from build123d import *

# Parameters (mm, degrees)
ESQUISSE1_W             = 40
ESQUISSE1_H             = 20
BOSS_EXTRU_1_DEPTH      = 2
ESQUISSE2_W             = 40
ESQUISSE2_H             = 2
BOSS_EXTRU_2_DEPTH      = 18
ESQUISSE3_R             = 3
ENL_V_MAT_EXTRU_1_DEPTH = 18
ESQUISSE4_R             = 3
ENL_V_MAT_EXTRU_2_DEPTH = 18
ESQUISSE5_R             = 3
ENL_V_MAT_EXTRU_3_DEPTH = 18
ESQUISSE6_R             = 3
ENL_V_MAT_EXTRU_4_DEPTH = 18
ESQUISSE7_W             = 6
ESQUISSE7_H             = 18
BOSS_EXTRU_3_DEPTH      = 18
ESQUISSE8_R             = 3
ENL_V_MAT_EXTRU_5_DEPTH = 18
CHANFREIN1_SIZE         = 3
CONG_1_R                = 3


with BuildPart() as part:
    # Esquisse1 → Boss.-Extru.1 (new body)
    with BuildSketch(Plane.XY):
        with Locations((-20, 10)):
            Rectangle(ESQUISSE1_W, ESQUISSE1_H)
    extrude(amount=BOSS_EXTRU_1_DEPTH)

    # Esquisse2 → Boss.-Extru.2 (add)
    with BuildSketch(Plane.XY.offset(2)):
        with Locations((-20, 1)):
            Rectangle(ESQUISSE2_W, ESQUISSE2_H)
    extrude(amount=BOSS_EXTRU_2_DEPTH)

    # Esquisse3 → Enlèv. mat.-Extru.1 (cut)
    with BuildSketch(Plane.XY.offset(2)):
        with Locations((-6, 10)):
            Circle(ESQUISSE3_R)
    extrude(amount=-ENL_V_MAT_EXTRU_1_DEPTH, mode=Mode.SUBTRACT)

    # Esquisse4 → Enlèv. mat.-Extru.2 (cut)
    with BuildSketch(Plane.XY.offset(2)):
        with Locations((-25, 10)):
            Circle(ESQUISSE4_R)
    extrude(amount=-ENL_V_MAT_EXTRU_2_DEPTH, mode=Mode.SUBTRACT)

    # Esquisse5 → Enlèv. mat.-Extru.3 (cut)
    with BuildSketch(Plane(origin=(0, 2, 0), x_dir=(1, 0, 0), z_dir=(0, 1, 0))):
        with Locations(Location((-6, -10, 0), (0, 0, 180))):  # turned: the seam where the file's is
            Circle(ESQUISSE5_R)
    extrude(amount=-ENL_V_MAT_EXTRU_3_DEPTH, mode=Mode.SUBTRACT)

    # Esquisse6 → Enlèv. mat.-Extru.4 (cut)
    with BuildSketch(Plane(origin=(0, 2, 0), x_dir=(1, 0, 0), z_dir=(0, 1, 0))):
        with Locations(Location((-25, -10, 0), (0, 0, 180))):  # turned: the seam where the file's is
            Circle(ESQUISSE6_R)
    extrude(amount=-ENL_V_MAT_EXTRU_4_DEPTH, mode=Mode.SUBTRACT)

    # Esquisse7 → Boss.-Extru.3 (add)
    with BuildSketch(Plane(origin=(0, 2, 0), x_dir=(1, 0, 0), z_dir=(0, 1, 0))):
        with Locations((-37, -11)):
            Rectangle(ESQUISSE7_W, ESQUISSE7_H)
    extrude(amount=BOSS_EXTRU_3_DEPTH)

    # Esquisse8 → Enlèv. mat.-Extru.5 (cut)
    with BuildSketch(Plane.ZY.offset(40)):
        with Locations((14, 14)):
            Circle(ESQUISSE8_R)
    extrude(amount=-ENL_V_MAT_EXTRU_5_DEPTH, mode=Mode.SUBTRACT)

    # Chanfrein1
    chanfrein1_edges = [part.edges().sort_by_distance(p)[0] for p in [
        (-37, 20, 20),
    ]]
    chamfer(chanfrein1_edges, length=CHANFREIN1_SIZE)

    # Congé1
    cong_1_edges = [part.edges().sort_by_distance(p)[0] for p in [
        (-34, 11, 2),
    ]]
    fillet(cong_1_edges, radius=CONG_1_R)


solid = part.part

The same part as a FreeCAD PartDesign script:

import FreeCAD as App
import Part
import Sketcher

V = App.Vector
Q = App.Units.Quantity


def edges_at(feature, points):
    """Names of the edges that pass closest to the given points."""
    edges = feature.Shape.Edges
    near = lambda p: min(range(len(edges)), key=lambda i: edges[i].distToShape(Part.Vertex(*p))[0])
    return sorted({f"Edge{near(p) + 1}" for p in points})


def add_polygon(sketch, points):
    """Adds a closed chain of lines whose ends are joined by coincident constraints."""
    first, n = sketch.GeometryCount, len(points)
    for a, b in zip(points, points[1:] + points[:1]):
        sketch.addGeometry(Part.LineSegment(App.Vector(*a, 0), App.Vector(*b, 0)), False)
    for i in range(n):
        sketch.addConstraint(Sketcher.Constraint("Coincident", first + i, 2, first + (i + 1) % n, 1))

doc = App.newDocument("Part")
body = doc.addObject("PartDesign::Body", "Body")

# Sketch on XY plane
sketch1 = body.newObject("Sketcher::SketchObject", "Sketch")
sketch1.AttachmentSupport = (doc.getObject("XY_Plane"), [""])
sketch1.MapMode = "FlatFace"
add_polygon(sketch1, [(-40, 20), (-40, 0), (0, 0), (0, 20)])  # lines 0-3
sketch1.addConstraint([
    Sketcher.Constraint("Vertical", 0),
    Sketcher.Constraint("Horizontal", 1),
    Sketcher.Constraint("Vertical", 2),
    Sketcher.Constraint("Horizontal", 3),
    Sketcher.Constraint("Coincident", 1, 2, -1, 1),
    Sketcher.Constraint("DistanceX", 1, 1, 1, 2, Q("40 mm")),
    Sketcher.Constraint("DistanceY", 0, 2, 0, 1, Q("20 mm")),
])
pad1 = body.newObject("PartDesign::Pad", "Pad")
pad1.Profile = sketch1
pad1.Length = 2

# Sketch on XY plane
sketch2 = body.newObject("Sketcher::SketchObject", "Sketch001")
sketch2.AttachmentSupport = (doc.getObject("XY_Plane"), [""])
sketch2.MapMode = "FlatFace"
sketch2.AttachmentOffset = App.Placement(V(0, 0, 2), App.Rotation())
add_polygon(sketch2, [(-40, 2), (-40, 0), (0, 0), (0, 2)])  # lines 0-3
sketch2.addConstraint([
    Sketcher.Constraint("Vertical", 0),
    Sketcher.Constraint("Horizontal", 1),
    Sketcher.Constraint("Vertical", 2),
    Sketcher.Constraint("Horizontal", 3),
    Sketcher.Constraint("Coincident", 1, 2, -1, 1),
    Sketcher.Constraint("DistanceX", 1, 1, 1, 2, Q("40 mm")),
    Sketcher.Constraint("DistanceY", 0, 2, 0, 1, Q("2 mm")),
])
pad2 = body.newObject("PartDesign::Pad", "Pad001")
pad2.Profile = sketch2
pad2.Length = 18

# Sketch on XY plane
sketch3 = body.newObject("Sketcher::SketchObject", "Sketch002")
sketch3.AttachmentSupport = (doc.getObject("XY_Plane"), [""])
sketch3.MapMode = "FlatFace"
sketch3.AttachmentOffset = App.Placement(V(0, 0, 2), App.Rotation())
sketch3.addGeometry(Part.Circle(V(-6, 10, 0), V(0, 0, 1), 3), False)
sketch3.addConstraint([
    Sketcher.Constraint("Diameter", 0, Q("6 mm")),
    Sketcher.Constraint("DistanceX", 0, 3, -1, 1, Q("6 mm")),
    Sketcher.Constraint("DistanceY", -1, 1, 0, 3, Q("10 mm")),
])
pocket1 = body.newObject("PartDesign::Pocket", "Pocket")
pocket1.Profile = sketch3
pocket1.Length = 18

# Sketch on XY plane
sketch4 = body.newObject("Sketcher::SketchObject", "Sketch003")
sketch4.AttachmentSupport = (doc.getObject("XY_Plane"), [""])
sketch4.MapMode = "FlatFace"
sketch4.AttachmentOffset = App.Placement(V(0, 0, 2), App.Rotation())
sketch4.addGeometry(Part.Circle(V(-25, 10, 0), V(0, 0, 1), 3), False)
sketch4.addConstraint([
    Sketcher.Constraint("Diameter", 0, Q("6 mm")),
    Sketcher.Constraint("DistanceX", 0, 3, -1, 1, Q("25 mm")),
    Sketcher.Constraint("DistanceY", -1, 1, 0, 3, Q("10 mm")),
])
pocket2 = body.newObject("PartDesign::Pocket", "Pocket001")
pocket2.Profile = sketch4
pocket2.Length = 18

# Sketch on XZ plane
sketch5 = body.newObject("Sketcher::SketchObject", "Sketch004")
sketch5.AttachmentSupport = (doc.getObject("XZ_Plane"), [""])
sketch5.MapMode = "FlatFace"
sketch5.AttachmentOffset = App.Placement(V(0, 0, -2), App.Rotation())
sketch5.addGeometry(Part.Circle(V(-6, 10, 0), V(0, 0, 1), 3), False)
sketch5.addConstraint([
    Sketcher.Constraint("Diameter", 0, Q("6 mm")),
    Sketcher.Constraint("DistanceX", 0, 3, -1, 1, Q("6 mm")),
    Sketcher.Constraint("DistanceY", -1, 1, 0, 3, Q("10 mm")),
])
pocket3 = body.newObject("PartDesign::Pocket", "Pocket002")
pocket3.Profile = sketch5
pocket3.Length = 18
pocket3.Reversed = True

# Sketch on XZ plane
sketch6 = body.newObject("Sketcher::SketchObject", "Sketch005")
sketch6.AttachmentSupport = (doc.getObject("XZ_Plane"), [""])
sketch6.MapMode = "FlatFace"
sketch6.AttachmentOffset = App.Placement(V(0, 0, -2), App.Rotation())
sketch6.addGeometry(Part.Circle(V(-25, 10, 0), V(0, 0, 1), 3), False)
sketch6.addConstraint([
    Sketcher.Constraint("Diameter", 0, Q("6 mm")),
    Sketcher.Constraint("DistanceX", 0, 3, -1, 1, Q("25 mm")),
    Sketcher.Constraint("DistanceY", -1, 1, 0, 3, Q("10 mm")),
])
pocket4 = body.newObject("PartDesign::Pocket", "Pocket003")
pocket4.Profile = sketch6
pocket4.Length = 18
pocket4.Reversed = True

# Sketch on XZ plane
sketch7 = body.newObject("Sketcher::SketchObject", "Sketch006")
sketch7.AttachmentSupport = (doc.getObject("XZ_Plane"), [""])
sketch7.MapMode = "FlatFace"
sketch7.AttachmentOffset = App.Placement(V(0, 0, -2), App.Rotation())
add_polygon(sketch7, [(-40, 2), (-40, 20), (-34, 20), (-34, 2)])  # lines 0-3
sketch7.addConstraint([
    Sketcher.Constraint("Vertical", 0),
    Sketcher.Constraint("Horizontal", 1),
    Sketcher.Constraint("Vertical", 2),
    Sketcher.Constraint("Horizontal", 3),
    Sketcher.Constraint("DistanceX", 1, 1, 1, 2, Q("6 mm")),
    Sketcher.Constraint("DistanceY", 0, 1, 0, 2, Q("18 mm")),
    Sketcher.Constraint("DistanceX", 0, 2, -1, 1, Q("40 mm")),
    Sketcher.Constraint("DistanceY", -1, 1, 0, 2, Q("20 mm")),
])
pad3 = body.newObject("PartDesign::Pad", "Pad002")
pad3.Profile = sketch7
pad3.Length = 18
pad3.Reversed = True

# Sketch on YZ plane
sketch8 = body.newObject("Sketcher::SketchObject", "Sketch007")
sketch8.AttachmentSupport = (doc.getObject("YZ_Plane"), [""])
sketch8.MapMode = "FlatFace"
sketch8.AttachmentOffset = App.Placement(V(0, 0, -40), App.Rotation())
sketch8.addGeometry(Part.Circle(V(14, 14, 0), V(0, 0, 1), 3), False)
sketch8.addConstraint([
    Sketcher.Constraint("Diameter", 0, Q("6 mm")),
    Sketcher.Constraint("DistanceX", -1, 1, 0, 3, Q("14 mm")),
    Sketcher.Constraint("DistanceY", -1, 1, 0, 3, Q("14 mm")),
])
pocket5 = body.newObject("PartDesign::Pocket", "Pocket004")
pocket5.Profile = sketch8
pocket5.Length = 18
pocket5.Reversed = True
doc.recompute()

chamfer = body.newObject("PartDesign::Chamfer", "Chamfer")
chamfer.Base = (pocket5, edges_at(pocket5, [(-37, 20, 20)]))
chamfer.Size = 3
doc.recompute()

fillet = body.newObject("PartDesign::Fillet", "Fillet")
fillet.Base = (chamfer, edges_at(chamfer, [(-34, 11, 2)]))
fillet.Radius = 3

doc.recompute()
